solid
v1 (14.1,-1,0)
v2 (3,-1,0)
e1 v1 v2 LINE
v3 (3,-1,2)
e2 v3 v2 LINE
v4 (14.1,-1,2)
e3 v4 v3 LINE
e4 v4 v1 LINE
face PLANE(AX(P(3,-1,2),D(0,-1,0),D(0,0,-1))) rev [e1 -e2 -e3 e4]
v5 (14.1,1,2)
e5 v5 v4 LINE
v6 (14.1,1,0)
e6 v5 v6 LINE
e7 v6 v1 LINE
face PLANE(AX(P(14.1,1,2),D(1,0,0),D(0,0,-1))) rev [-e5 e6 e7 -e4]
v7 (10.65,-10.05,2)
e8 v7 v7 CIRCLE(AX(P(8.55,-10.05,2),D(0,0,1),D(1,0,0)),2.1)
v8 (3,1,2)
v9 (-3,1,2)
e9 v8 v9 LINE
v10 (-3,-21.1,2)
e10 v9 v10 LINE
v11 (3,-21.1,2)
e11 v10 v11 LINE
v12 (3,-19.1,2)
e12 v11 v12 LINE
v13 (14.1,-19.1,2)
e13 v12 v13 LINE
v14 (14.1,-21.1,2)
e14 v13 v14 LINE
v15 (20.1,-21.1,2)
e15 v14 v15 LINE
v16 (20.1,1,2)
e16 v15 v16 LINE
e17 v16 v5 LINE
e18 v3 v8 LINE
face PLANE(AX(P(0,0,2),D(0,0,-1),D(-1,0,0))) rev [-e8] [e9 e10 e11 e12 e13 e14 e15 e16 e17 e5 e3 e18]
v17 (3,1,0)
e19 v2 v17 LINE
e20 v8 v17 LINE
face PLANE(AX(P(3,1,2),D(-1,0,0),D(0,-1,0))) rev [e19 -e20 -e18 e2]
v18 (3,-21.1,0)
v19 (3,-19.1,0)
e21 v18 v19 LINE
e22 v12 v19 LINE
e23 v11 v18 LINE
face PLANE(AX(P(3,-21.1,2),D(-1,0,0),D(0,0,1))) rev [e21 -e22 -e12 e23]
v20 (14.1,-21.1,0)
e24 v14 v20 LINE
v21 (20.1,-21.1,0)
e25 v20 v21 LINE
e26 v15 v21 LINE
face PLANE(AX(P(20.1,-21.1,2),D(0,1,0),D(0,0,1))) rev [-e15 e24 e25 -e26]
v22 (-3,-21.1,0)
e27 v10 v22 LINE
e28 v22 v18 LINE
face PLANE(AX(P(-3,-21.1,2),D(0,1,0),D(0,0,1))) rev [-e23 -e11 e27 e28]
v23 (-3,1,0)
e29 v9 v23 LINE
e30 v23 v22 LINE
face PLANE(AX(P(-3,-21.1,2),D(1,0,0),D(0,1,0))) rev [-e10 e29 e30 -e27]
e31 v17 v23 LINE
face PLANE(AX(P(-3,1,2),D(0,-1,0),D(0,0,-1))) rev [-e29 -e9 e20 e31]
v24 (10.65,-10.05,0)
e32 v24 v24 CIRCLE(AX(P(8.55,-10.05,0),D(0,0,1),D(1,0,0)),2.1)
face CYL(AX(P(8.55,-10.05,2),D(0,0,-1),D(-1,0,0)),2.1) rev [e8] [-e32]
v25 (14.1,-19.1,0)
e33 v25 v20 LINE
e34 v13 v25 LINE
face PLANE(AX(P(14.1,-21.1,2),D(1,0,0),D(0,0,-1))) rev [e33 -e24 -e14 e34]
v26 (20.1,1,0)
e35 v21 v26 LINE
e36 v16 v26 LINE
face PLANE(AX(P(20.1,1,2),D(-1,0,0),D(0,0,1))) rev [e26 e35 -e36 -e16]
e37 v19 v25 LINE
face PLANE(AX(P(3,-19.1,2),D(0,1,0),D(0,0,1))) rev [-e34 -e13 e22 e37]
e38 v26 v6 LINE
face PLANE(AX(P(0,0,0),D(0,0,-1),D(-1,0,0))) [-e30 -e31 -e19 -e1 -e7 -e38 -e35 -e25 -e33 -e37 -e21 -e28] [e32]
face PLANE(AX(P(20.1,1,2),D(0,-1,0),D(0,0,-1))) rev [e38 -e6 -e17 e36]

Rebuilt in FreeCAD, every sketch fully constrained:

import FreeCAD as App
import Part
import Sketcher

V = App.Vector
Q = App.Units.Quantity


def add_polygon(sketch, points):
    """Adds a closed chain of lines whose ends are joined by coincident constraints."""
    first, n = sketch.GeometryCount, len(points)
    for a, b in zip(points, points[1:] + points[:1]):
        sketch.addGeometry(Part.LineSegment(App.Vector(*a, 0), App.Vector(*b, 0)), False)
    for i in range(n):
        sketch.addConstraint(Sketcher.Constraint("Coincident", first + i, 2, first + (i + 1) % n, 1))

doc = App.newDocument("Part")
body = doc.addObject("PartDesign::Body", "Body")

# Sketch on XY plane
sketch1 = doc.addObject("Sketcher::SketchObject", "Sketch")
body.addObject(sketch1)
sketch1.AttachmentSupport = (doc.XY_Plane, [""])
sketch1.MapMode = "FlatFace"
add_polygon(sketch1, [(3, 1), (-3, 1), (-3, -21.1), (3, -21.1), (3, -19.1), (14.1, -19.1), (14.1, -21.1), (20.1, -21.1), (20.1, 1), (14.1, 1), (14.1, -1), (3, -1)])  # lines 0-11
sketch1.addGeometry(Part.Circle(V(8.55, -10.05, 0), V(0, 0, 1), 2.1), False)  # 12
sketch1.addConstraint([
    Sketcher.Constraint("Horizontal", 0),
    Sketcher.Constraint("Vertical", 1),
    Sketcher.Constraint("Horizontal", 2),
    Sketcher.Constraint("Vertical", 3),
    Sketcher.Constraint("Horizontal", 4),
    Sketcher.Constraint("Vertical", 5),
    Sketcher.Constraint("Horizontal", 6),
    Sketcher.Constraint("Vertical", 7),
    Sketcher.Constraint("Horizontal", 8),
    Sketcher.Constraint("Vertical", 9),
    Sketcher.Constraint("Horizontal", 10),
    Sketcher.Constraint("Vertical", 11),
    Sketcher.Constraint("Symmetric", 0, 2, 10, 2, -1, 1),
    Sketcher.Constraint("Horizontal", 2, 2, 5, 2),
    Sketcher.Constraint("Horizontal", 0, 2, 7, 2),
    Sketcher.Constraint("Vertical", 5, 2, 8, 2),
    Sketcher.Constraint("Vertical", 3, 2, 10, 2),
    Sketcher.Constraint("Equal", 2, 6),
    Sketcher.Constraint("Equal", 5, 9),
    Sketcher.Constraint("Diameter", 12, Q("4.2 mm")),
    Sketcher.Constraint("DistanceX", 0, 2, 0, 1, Q("6 mm")),
    Sketcher.Constraint("DistanceY", 3, 1, 3, 2, Q("2 mm")),
    Sketcher.Constraint("DistanceX", 4, 1, 4, 2, Q("11.1 mm")),
    Sketcher.Constraint("DistanceY", 1, 2, 1, 1, Q("22.1 mm")),
    Sketcher.Constraint("DistanceX", -1, 1, 12, 3, Q("8.55 mm")),
    Sketcher.Constraint("DistanceY", 12, 3, -1, 1, Q("10.05 mm")),
])
pad1 = doc.addObject("PartDesign::Pad", "Pad")
body.addObject(pad1)
pad1.Profile = sketch1
pad1.Length = 2

doc.recompute()
